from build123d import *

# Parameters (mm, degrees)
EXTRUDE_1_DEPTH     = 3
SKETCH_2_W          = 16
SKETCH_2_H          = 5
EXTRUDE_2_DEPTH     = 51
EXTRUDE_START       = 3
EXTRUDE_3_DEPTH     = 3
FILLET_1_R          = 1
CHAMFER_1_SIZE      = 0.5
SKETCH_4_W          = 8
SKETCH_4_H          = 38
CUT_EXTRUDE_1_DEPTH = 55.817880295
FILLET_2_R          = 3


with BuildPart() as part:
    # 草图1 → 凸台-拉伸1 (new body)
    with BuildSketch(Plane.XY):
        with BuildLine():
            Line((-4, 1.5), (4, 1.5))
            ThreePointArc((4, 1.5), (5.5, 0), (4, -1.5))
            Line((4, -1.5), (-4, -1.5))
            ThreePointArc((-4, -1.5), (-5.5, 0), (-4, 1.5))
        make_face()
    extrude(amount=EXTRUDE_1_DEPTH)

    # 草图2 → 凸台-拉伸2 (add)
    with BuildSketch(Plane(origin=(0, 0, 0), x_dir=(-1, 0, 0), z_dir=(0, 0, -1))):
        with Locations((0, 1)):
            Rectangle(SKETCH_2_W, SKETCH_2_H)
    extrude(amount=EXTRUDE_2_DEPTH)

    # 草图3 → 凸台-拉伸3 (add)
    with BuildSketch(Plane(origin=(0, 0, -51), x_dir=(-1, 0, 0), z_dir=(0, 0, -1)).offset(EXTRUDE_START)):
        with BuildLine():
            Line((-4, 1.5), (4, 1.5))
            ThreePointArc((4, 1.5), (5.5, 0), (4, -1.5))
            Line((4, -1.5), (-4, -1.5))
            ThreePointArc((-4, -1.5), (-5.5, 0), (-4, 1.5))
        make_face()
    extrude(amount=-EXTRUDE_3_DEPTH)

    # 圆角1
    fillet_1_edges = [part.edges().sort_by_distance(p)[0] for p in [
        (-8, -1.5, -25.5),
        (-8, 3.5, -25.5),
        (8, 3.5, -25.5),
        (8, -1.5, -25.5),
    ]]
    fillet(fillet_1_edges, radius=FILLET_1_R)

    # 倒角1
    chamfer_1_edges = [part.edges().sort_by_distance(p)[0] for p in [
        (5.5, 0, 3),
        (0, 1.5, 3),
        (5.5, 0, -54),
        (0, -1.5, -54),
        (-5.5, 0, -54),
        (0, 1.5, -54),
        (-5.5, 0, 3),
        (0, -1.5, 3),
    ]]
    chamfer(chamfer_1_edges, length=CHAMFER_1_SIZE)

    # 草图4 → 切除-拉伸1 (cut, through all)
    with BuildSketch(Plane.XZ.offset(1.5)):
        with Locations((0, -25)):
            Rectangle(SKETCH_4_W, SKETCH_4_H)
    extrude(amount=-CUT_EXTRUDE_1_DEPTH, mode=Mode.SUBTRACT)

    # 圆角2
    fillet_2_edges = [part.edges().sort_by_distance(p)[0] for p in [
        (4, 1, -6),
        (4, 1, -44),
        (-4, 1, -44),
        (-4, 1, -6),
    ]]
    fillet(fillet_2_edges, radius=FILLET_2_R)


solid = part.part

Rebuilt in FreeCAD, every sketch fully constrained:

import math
import FreeCAD as App
import Part
import Sketcher


def edges_at(feature, points):
    """Names of the edges that pass closest to the given points."""
    edges = feature.Shape.Edges
    near = lambda p: min(range(len(edges)), key=lambda i: edges[i].distToShape(Part.Vertex(*p))[0])
    return sorted({f"Edge{near(p) + 1}" for p in points})


def add_polygon(sketch, points):
    """Adds a closed chain of lines whose ends are joined by coincident constraints."""
    first, n = sketch.GeometryCount, len(points)
    for a, b in zip(points, points[1:] + points[:1]):
        sketch.addGeometry(Part.LineSegment(App.Vector(*a, 0), App.Vector(*b, 0)), False)
    for i in range(n):
        sketch.addConstraint(Sketcher.Constraint("Coincident", first + i, 2, first + (i + 1) % n, 1))

doc = App.newDocument("Part")
params = doc.addObject("Spreadsheet::Sheet", "Params")
for row, (alias, value) in enumerate([
    ("sketch1_radius", "1.5 mm"),
    ("sketch1_width", "8 mm"),
    ("pad1_length", "3 mm"),
    ("sketch2_width", "16 mm"),
    ("sketch2_height", "5 mm"),
    ("pad2_length", "51 mm"),
    ("sketch3_radius", "1.5 mm"),
    ("sketch3_width", "8 mm"),
    ("pad3_length", "3 mm"),
    ("fillet_radius", "1 mm"),
    ("chamfer_size", "0.5 mm"),
    ("sketch4_width", "8 mm"),
    ("sketch4_height", "38 mm"),
    ("fillet2_radius", "3 mm"),
], start=1):
    params.set(f"A{row}", alias)
    params.set(f"B{row}", "=" + value)
    params.setAlias(f"B{row}", alias)

body = doc.addObject("PartDesign::Body", "Body")

# Sketch on XY plane
sketch1 = doc.addObject("Sketcher::SketchObject", "Sketch")
body.addObject(sketch1)
sketch1.AttachmentSupport = (doc.XY_Plane, [""])
sketch1.MapMode = "FlatFace"
sketch1.addGeometry(Part.LineSegment(App.Vector(4, 1.5, 0), App.Vector(-4, 1.5, 0)), False)
sketch1.addGeometry(Part.ArcOfCircle(Part.Circle(App.Vector(-4, 0, 0), App.Vector(0, 0, 1), 1.5), math.radians(90), math.radians(270)), False)
sketch1.addGeometry(Part.LineSegment(App.Vector(-4, -1.5, 0), App.Vector(4, -1.5, 0)), False)
sketch1.addGeometry(Part.ArcOfCircle(Part.Circle(App.Vector(4, 0, 0), App.Vector(0, 0, 1), 1.5), math.radians(-90), math.radians(90)), False)
sketch1.addConstraint(Sketcher.Constraint("Tangent", 0, 2, 1, 1))
sketch1.addConstraint(Sketcher.Constraint("Tangent", 1, 2, 2, 1))
sketch1.addConstraint(Sketcher.Constraint("Tangent", 2, 2, 3, 1))
sketch1.addConstraint(Sketcher.Constraint("Tangent", 3, 2, 0, 1))
sketch1.addConstraint(Sketcher.Constraint("Horizontal", 0))
sketch1.addConstraint(Sketcher.Constraint("Horizontal", 2))
sketch1.addConstraint(Sketcher.Constraint("Symmetric", 1, 3, 3, 3, -1, 1))
sketch1.addConstraint(Sketcher.Constraint("Radius", 1, 1.5))
sketch1.addConstraint(Sketcher.Constraint("DistanceX", 0, 2, 0, 1, 8.0))
sketch1.setExpression("Constraints[7]", "Params.sketch1_radius")
sketch1.setExpression("Constraints[8]", "Params.sketch1_width")
pad1 = doc.addObject("PartDesign::Pad", "Pad")
body.addObject(pad1)
pad1.Profile = sketch1
pad1.setExpression("Length", "Params.pad1_length")

# Sketch on XY plane
sketch2 = doc.addObject("Sketcher::SketchObject", "Sketch001")
body.addObject(sketch2)
sketch2.AttachmentSupport = (doc.XY_Plane, [""])
sketch2.MapMode = "FlatFace"
add_polygon(sketch2, [(8, 4), (8, -2), (-8, -2), (-8, 4)])  # lines 0-3
sketch2.addConstraint(Sketcher.Constraint("Vertical", 0))
sketch2.addConstraint(Sketcher.Constraint("Horizontal", 1))
sketch2.addConstraint(Sketcher.Constraint("Vertical", 2))
sketch2.addConstraint(Sketcher.Constraint("Horizontal", 3))
sketch2.addConstraint(Sketcher.Constraint("DistanceX", 1, 2, 1, 1, 16.0))
sketch2.addConstraint(Sketcher.Constraint("DistanceY", 0, 2, 0, 1, 5.0))
sketch2.addConstraint(Sketcher.Constraint("DistanceX", -1, 1, 0, 2, 8.0))
sketch2.addConstraint(Sketcher.Constraint("DistanceY", 0, 2, -1, 1, 1.5))
sketch2.setExpression("Constraints[8]", "Params.sketch2_width")
sketch2.setExpression("Constraints[9]", "Params.sketch2_height")
pad2 = doc.addObject("PartDesign::Pad", "Pad001")
body.addObject(pad2)
pad2.Profile = sketch2
pad2.setExpression("Length", "Params.pad2_length")
pad2.Reversed = True

# Sketch on XY plane
sketch3 = doc.addObject("Sketcher::SketchObject", "Sketch002")
body.addObject(sketch3)
sketch3.AttachmentSupport = (doc.XY_Plane, [""])
sketch3.MapMode = "FlatFace"
sketch3.AttachmentOffset = App.Placement(App.Vector(0, 0, -54), App.Rotation())
sketch3.addGeometry(Part.LineSegment(App.Vector(-4, 1.5, 0), App.Vector(4, 1.5, 0)), False)
sketch3.addGeometry(Part.ArcOfCircle(Part.Circle(App.Vector(4, 0, 0), App.Vector(0, 0, 1), 1.5), math.radians(-90), math.radians(90)), False)
sketch3.addGeometry(Part.LineSegment(App.Vector(4, -1.5, 0), App.Vector(-4, -1.5, 0)), False)
sketch3.addGeometry(Part.ArcOfCircle(Part.Circle(App.Vector(-4, 0, 0), App.Vector(0, 0, 1), 1.5), math.radians(90), math.radians(270)), False)
sketch3.addConstraint(Sketcher.Constraint("Tangent", 0, 2, 1, 2))
sketch3.addConstraint(Sketcher.Constraint("Tangent", 1, 1, 2, 1))
sketch3.addConstraint(Sketcher.Constraint("Tangent", 2, 2, 3, 2))
sketch3.addConstraint(Sketcher.Constraint("Tangent", 3, 1, 0, 1))
sketch3.addConstraint(Sketcher.Constraint("Horizontal", 0))
sketch3.addConstraint(Sketcher.Constraint("Horizontal", 2))
sketch3.addConstraint(Sketcher.Constraint("Symmetric", 1, 3, 3, 3, -1, 1))
sketch3.addConstraint(Sketcher.Constraint("Radius", 1, 1.5))
sketch3.addConstraint(Sketcher.Constraint("DistanceX", 0, 1, 0, 2, 8.0))
sketch3.setExpression("Constraints[7]", "Params.sketch3_radius")
sketch3.setExpression("Constraints[8]", "Params.sketch3_width")
pad3 = doc.addObject("PartDesign::Pad", "Pad002")
body.addObject(pad3)
pad3.Profile = sketch3
pad3.setExpression("Length", "Params.pad3_length")
doc.recompute()

fillet = doc.addObject("PartDesign::Fillet", "Fillet")
body.addObject(fillet)
fillet.Base = (pad3, edges_at(pad3, [
    (-8, -1.5, -25.5),
    (-8, 3.5, -25.5),
    (8, 3.5, -25.5),
    (8, -1.5, -25.5),
]))
fillet.setExpression("Radius", "Params.fillet_radius")
doc.recompute()

chamfer = doc.addObject("PartDesign::Chamfer", "Chamfer")
body.addObject(chamfer)
chamfer.Base = (fillet, edges_at(fillet, [
    (5.5, 0, 3),
    (0, 1.5, 3),
    (5.5, 0, -54),
    (0, -1.5, -54),
    (-5.5, 0, -54),
    (0, 1.5, -54),
    (-5.5, 0, 3),
    (0, -1.5, 3),
]))
chamfer.setExpression("Size", "Params.chamfer_size")

# Sketch on XZ plane
sketch4 = doc.addObject("Sketcher::SketchObject", "Sketch003")
body.addObject(sketch4)
sketch4.AttachmentSupport = (doc.XZ_Plane, [""])
sketch4.MapMode = "FlatFace"
sketch4.AttachmentOffset = App.Placement(App.Vector(0, 0, 1.5), App.Rotation())
add_polygon(sketch4, [(-4, -6), (-4, -44), (4, -44), (4, -6)])  # lines 0-3
sketch4.addConstraint(Sketcher.Constraint("Vertical", 0))
sketch4.addConstraint(Sketcher.Constraint("Horizontal", 1))
sketch4.addConstraint(Sketcher.Constraint("Vertical", 2))
sketch4.addConstraint(Sketcher.Constraint("Horizontal", 3))
sketch4.addConstraint(Sketcher.Constraint("DistanceX", 1, 1, 1, 2, 8.0))
sketch4.addConstraint(Sketcher.Constraint("DistanceY", 0, 2, 0, 1, 38.0))
sketch4.addConstraint(Sketcher.Constraint("DistanceX", 0, 2, -1, 1, 4.0))
sketch4.addConstraint(Sketcher.Constraint("DistanceY", 0, 2, -1, 1, 44.0))
sketch4.setExpression("Constraints[8]", "Params.sketch4_width")
sketch4.setExpression("Constraints[9]", "Params.sketch4_height")
pocket1 = doc.addObject("PartDesign::Pocket", "Pocket")
body.addObject(pocket1)
pocket1.Profile = sketch4
pocket1.Type = "ThroughAll"
doc.recompute()

fillet2 = doc.addObject("PartDesign::Fillet", "Fillet001")
body.addObject(fillet2)
fillet2.Base = (pocket1, edges_at(pocket1, [
    (4, 1, -6),
    (4, 1, -44),
    (-4, 1, -44),
    (-4, 1, -6),
]))
fillet2.setExpression("Radius", "Params.fillet2_radius")

doc.recompute()
